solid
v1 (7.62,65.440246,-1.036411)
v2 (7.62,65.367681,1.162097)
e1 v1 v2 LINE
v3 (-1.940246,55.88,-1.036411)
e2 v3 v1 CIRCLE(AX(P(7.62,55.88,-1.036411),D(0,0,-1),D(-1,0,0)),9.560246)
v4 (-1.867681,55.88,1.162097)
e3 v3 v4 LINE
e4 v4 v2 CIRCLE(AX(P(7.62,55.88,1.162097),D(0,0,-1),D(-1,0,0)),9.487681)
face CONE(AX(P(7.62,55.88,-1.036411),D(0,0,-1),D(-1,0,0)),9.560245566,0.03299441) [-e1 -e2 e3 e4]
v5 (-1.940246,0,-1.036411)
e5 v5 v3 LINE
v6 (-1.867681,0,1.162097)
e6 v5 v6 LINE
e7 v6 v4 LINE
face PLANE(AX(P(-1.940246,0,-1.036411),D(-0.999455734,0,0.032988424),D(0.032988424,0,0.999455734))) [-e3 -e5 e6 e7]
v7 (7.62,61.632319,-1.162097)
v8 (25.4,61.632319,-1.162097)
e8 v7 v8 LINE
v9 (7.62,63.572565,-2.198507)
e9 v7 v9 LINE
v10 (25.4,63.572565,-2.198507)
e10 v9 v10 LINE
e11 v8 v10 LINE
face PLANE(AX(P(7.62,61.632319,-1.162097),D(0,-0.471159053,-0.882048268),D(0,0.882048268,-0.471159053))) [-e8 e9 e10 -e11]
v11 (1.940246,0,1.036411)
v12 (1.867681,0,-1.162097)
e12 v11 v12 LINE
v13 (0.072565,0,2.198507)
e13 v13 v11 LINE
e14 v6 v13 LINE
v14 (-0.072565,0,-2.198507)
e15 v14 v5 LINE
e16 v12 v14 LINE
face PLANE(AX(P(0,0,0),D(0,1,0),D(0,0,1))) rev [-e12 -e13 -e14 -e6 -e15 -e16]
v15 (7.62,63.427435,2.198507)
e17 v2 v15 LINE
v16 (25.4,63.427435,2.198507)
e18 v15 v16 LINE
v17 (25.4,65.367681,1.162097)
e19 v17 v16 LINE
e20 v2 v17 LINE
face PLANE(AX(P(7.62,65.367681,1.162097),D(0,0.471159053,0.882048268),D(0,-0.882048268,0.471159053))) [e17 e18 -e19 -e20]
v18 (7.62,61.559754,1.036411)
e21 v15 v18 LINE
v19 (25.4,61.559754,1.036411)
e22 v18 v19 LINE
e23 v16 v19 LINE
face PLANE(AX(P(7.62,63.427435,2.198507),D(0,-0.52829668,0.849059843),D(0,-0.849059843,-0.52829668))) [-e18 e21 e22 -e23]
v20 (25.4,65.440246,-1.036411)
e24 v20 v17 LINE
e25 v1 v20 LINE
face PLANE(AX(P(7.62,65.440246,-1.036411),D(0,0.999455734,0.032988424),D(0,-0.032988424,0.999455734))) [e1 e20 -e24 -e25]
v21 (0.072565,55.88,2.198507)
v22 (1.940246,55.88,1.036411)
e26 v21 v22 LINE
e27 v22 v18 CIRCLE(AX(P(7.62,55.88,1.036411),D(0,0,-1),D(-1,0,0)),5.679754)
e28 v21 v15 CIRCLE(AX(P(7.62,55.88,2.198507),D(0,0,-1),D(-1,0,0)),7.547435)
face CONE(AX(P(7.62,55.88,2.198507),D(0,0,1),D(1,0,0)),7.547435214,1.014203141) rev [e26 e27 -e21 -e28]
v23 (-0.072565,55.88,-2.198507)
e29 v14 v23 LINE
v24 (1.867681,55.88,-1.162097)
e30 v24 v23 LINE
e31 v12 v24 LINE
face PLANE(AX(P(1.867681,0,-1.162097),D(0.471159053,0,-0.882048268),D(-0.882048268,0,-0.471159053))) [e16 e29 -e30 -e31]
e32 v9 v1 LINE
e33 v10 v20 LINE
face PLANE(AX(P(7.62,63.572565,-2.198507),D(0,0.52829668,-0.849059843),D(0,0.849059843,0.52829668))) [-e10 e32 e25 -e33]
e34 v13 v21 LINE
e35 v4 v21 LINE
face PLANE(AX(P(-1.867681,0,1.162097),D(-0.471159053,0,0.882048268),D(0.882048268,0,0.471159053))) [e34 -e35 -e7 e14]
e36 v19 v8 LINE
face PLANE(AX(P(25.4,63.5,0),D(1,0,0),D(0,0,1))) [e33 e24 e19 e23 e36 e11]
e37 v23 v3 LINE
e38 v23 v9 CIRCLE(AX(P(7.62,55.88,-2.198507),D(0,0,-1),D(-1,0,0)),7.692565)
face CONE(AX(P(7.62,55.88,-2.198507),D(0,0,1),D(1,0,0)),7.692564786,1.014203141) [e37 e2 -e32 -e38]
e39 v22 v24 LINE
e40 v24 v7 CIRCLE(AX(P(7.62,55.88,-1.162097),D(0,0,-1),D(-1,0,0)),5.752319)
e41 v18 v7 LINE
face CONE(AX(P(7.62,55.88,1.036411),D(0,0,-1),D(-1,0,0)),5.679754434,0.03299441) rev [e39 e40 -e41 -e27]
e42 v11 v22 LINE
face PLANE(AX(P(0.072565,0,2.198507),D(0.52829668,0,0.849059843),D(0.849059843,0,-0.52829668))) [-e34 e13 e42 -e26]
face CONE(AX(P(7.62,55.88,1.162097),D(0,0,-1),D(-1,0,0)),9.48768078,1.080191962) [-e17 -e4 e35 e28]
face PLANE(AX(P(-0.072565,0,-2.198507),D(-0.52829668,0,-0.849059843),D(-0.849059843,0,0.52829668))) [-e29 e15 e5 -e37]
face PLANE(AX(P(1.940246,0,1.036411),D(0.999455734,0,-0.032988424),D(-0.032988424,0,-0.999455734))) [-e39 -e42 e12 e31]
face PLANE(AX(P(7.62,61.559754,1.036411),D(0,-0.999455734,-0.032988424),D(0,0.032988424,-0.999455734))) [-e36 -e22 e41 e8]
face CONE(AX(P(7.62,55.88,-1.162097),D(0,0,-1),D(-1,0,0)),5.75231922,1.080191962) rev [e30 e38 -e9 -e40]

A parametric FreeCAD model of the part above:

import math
import FreeCAD as App
import Part
import Sketcher

V = App.Vector
Q = App.Units.Quantity


def add_polygon(sketch, points):
    """Adds a closed chain of lines whose ends are joined by coincident constraints."""
    first, n = sketch.GeometryCount, len(points)
    for a, b in zip(points, points[1:] + points[:1]):
        sketch.addGeometry(Part.LineSegment(App.Vector(*a, 0), App.Vector(*b, 0)), False)
    for i in range(n):
        sketch.addConstraint(Sketcher.Constraint("Coincident", first + i, 2, first + (i + 1) % n, 1))

doc = App.newDocument("Part")
body = doc.addObject("PartDesign::Body", "Body")

# Sketch on XZ plane
sketch1 = body.newObject("Sketcher::SketchObject", "Sketch")
sketch1.AttachmentSupport = (doc.getObject("XZ_Plane"), [""])
sketch1.MapMode = "FlatFace"
add_polygon(sketch1, [(1.867681, -1.162097), (-0.072565, -2.198507), (-1.940246, -1.036411), (-1.867681, 1.162097), (0.072565, 2.198507), (1.940246, 1.036411)])  # lines 0-5
sketch1.addConstraint(Sketcher.Constraint("Symmetric", 0, 2, 3, 2, -1, 1))
sketch1.addConstraint(Sketcher.Constraint("Symmetric", 1, 2, 4, 2, -1, 1))
sketch1.addConstraint(Sketcher.Constraint("Symmetric", 2, 2, 5, 2, -1, 1))
sketch1.addConstraint(Sketcher.Constraint("Equal", 0, 1))
sketch1.addConstraint(Sketcher.Constraint("Equal", 1, 2))
sketch1.addConstraint(Sketcher.Constraint("DistanceY", 1, 2, -1, 1, 1.036411))
sketch1.addConstraint(Sketcher.Constraint("DistanceX", 2, 2, -1, 1, 1.867681))
sketch1.addConstraint(Sketcher.Constraint("DistanceX", 1, 2, 0, 2, 1.867681))
sketch1.addConstraint(Sketcher.Constraint("DistanceY", 2, 2, 3, 2, 1.036411))

# Sketch on XY plane
sketch2 = body.newObject("Sketcher::SketchObject", "Sketch001")
sketch2.AttachmentSupport = (doc.getObject("XY_Plane"), [""])
sketch2.MapMode = "FlatFace"
sketch2.addGeometry(Part.LineSegment(V(0, 0, 0), V(0, 55.88, 0)), False)
sketch2.addGeometry(Part.ArcOfCircle(Part.Circle(V(7.62, 55.88, 0), V(0, 0, 1), 7.62), math.radians(90), math.radians(180)), False)
sketch2.addGeometry(Part.LineSegment(V(7.62, 63.5, 0), V(25.4, 63.5, 0)), False)
sketch2.addConstraint(Sketcher.Constraint("Tangent", 0, 2, 1, 2))
sketch2.addConstraint(Sketcher.Constraint("Tangent", 1, 1, 2, 1))
sketch2.addConstraint(Sketcher.Constraint("Vertical", 0))
sketch2.addConstraint(Sketcher.Constraint("Horizontal", 2))
sketch2.addConstraint(Sketcher.Constraint("Coincident", 0, 1, -1, 1))
sketch2.addConstraint(Sketcher.Constraint("Radius", 1, Q("0.3 in")))
sketch2.addConstraint(Sketcher.Constraint("DistanceX", 2, 1, 2, 2, Q("0.7 in")))
sketch2.addConstraint(Sketcher.Constraint("DistanceY", 0, 1, 0, 2, Q("2.2 in")))
doc.recompute()

additivepipe = body.newObject("PartDesign::AdditivePipe", "AdditivePipe")
additivepipe.Profile = sketch1
additivepipe.Spine = (sketch2, ["Edge1", "Edge2", "Edge3"])

doc.recompute()
